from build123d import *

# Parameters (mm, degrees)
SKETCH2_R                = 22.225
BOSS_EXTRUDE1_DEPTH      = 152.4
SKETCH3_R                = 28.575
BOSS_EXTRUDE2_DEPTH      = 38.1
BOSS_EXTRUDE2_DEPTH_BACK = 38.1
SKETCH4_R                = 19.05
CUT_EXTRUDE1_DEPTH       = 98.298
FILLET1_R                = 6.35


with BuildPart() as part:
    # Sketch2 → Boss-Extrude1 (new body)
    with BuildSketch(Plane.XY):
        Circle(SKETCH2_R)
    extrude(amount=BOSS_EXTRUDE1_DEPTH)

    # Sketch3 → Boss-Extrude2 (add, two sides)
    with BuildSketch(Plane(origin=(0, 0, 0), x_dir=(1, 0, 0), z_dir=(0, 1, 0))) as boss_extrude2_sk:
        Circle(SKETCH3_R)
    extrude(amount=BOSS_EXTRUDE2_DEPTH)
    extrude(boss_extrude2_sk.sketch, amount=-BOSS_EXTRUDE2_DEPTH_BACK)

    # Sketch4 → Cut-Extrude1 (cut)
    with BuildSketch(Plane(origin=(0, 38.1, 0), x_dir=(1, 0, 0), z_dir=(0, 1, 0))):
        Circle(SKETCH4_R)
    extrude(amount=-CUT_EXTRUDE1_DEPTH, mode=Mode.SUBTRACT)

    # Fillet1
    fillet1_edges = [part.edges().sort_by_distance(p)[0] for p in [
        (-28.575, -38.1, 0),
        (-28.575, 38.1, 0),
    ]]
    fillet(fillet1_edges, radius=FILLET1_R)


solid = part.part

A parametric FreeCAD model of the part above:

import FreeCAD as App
import Part
import Sketcher
from FreeCAD import Vector
Q = App.Units.Quantity


def edges_at(feature, points):
    """Names of the edges that pass closest to the given points."""
    edges = feature.Shape.Edges
    near = lambda p: min(range(len(edges)), key=lambda i: edges[i].distToShape(Part.Vertex(*p))[0])
    return sorted({f"Edge{near(p) + 1}" for p in points})

doc = App.newDocument("Part")
body = doc.addObject("PartDesign::Body", "Body")

# Sketch on XY plane
sketch1 = body.newObject("Sketcher::SketchObject", "Sketch")
sketch1.AttachmentSupport = (doc.getObject("XY_Plane"), [""])
sketch1.MapMode = "FlatFace"
sketch1.addGeometry(Part.Circle(Vector(0, 0, 0), Vector(0, 0, 1), 22), False)
sketch1.addConstraint(Sketcher.Constraint("Coincident", 0, 3, -1, 1))
sketch1.addConstraint(Sketcher.Constraint("Diameter", 0, Q("1.75 in")))
pad1 = body.newObject("PartDesign::Pad", "Pad")
pad1.Profile = sketch1
pad1.Length = Q("6 in")

# Sketch on XZ plane
sketch2 = body.newObject("Sketcher::SketchObject", "Sketch001")
sketch2.AttachmentSupport = (doc.getObject("XZ_Plane"), [""])
sketch2.MapMode = "FlatFace"
sketch2.addGeometry(Part.Circle(Vector(0, 0, 0), Vector(0, 0, 1), 29), False)
sketch2.addConstraint(Sketcher.Constraint("Coincident", 0, 3, -1, 1))
sketch2.addConstraint(Sketcher.Constraint("Diameter", 0, Q("2.25 in")))
pad2 = body.newObject("PartDesign::Pad", "Pad001")
pad2.Profile = sketch2
pad2.Type = "TwoLengths"
pad2.Length = Q("1.5 in")
pad2.Length2 = Q("1.5 in")
pad2.Reversed = True

# Sketch on XZ plane
sketch3 = body.newObject("Sketcher::SketchObject", "Sketch002")
sketch3.AttachmentSupport = (doc.getObject("XZ_Plane"), [""])
sketch3.MapMode = "FlatFace"
sketch3.AttachmentOffset = App.Placement(Vector(0, 0, -1.5 * 25.4), App.Rotation())
sketch3.addGeometry(Part.Circle(Vector(0, 0, 0), Vector(0, 0, 1), 19), False)
sketch3.addConstraint(Sketcher.Constraint("Coincident", 0, 3, -1, 1))
sketch3.addConstraint(Sketcher.Constraint("Diameter", 0, Q("1.5 in")))
pocket1 = body.newObject("PartDesign::Pocket", "Pocket")
pocket1.Profile = sketch3
pocket1.Length = Q("3.87 in")
pocket1.Reversed = True
doc.recompute()

fillet = body.newObject("PartDesign::Fillet", "Fillet")
fillet.Base = (pocket1, edges_at(pocket1, [(-28.575, -38.1, 0), (-28.575, 38.1, 0)]))
fillet.Radius = Q("0.25 in")

doc.recompute()
